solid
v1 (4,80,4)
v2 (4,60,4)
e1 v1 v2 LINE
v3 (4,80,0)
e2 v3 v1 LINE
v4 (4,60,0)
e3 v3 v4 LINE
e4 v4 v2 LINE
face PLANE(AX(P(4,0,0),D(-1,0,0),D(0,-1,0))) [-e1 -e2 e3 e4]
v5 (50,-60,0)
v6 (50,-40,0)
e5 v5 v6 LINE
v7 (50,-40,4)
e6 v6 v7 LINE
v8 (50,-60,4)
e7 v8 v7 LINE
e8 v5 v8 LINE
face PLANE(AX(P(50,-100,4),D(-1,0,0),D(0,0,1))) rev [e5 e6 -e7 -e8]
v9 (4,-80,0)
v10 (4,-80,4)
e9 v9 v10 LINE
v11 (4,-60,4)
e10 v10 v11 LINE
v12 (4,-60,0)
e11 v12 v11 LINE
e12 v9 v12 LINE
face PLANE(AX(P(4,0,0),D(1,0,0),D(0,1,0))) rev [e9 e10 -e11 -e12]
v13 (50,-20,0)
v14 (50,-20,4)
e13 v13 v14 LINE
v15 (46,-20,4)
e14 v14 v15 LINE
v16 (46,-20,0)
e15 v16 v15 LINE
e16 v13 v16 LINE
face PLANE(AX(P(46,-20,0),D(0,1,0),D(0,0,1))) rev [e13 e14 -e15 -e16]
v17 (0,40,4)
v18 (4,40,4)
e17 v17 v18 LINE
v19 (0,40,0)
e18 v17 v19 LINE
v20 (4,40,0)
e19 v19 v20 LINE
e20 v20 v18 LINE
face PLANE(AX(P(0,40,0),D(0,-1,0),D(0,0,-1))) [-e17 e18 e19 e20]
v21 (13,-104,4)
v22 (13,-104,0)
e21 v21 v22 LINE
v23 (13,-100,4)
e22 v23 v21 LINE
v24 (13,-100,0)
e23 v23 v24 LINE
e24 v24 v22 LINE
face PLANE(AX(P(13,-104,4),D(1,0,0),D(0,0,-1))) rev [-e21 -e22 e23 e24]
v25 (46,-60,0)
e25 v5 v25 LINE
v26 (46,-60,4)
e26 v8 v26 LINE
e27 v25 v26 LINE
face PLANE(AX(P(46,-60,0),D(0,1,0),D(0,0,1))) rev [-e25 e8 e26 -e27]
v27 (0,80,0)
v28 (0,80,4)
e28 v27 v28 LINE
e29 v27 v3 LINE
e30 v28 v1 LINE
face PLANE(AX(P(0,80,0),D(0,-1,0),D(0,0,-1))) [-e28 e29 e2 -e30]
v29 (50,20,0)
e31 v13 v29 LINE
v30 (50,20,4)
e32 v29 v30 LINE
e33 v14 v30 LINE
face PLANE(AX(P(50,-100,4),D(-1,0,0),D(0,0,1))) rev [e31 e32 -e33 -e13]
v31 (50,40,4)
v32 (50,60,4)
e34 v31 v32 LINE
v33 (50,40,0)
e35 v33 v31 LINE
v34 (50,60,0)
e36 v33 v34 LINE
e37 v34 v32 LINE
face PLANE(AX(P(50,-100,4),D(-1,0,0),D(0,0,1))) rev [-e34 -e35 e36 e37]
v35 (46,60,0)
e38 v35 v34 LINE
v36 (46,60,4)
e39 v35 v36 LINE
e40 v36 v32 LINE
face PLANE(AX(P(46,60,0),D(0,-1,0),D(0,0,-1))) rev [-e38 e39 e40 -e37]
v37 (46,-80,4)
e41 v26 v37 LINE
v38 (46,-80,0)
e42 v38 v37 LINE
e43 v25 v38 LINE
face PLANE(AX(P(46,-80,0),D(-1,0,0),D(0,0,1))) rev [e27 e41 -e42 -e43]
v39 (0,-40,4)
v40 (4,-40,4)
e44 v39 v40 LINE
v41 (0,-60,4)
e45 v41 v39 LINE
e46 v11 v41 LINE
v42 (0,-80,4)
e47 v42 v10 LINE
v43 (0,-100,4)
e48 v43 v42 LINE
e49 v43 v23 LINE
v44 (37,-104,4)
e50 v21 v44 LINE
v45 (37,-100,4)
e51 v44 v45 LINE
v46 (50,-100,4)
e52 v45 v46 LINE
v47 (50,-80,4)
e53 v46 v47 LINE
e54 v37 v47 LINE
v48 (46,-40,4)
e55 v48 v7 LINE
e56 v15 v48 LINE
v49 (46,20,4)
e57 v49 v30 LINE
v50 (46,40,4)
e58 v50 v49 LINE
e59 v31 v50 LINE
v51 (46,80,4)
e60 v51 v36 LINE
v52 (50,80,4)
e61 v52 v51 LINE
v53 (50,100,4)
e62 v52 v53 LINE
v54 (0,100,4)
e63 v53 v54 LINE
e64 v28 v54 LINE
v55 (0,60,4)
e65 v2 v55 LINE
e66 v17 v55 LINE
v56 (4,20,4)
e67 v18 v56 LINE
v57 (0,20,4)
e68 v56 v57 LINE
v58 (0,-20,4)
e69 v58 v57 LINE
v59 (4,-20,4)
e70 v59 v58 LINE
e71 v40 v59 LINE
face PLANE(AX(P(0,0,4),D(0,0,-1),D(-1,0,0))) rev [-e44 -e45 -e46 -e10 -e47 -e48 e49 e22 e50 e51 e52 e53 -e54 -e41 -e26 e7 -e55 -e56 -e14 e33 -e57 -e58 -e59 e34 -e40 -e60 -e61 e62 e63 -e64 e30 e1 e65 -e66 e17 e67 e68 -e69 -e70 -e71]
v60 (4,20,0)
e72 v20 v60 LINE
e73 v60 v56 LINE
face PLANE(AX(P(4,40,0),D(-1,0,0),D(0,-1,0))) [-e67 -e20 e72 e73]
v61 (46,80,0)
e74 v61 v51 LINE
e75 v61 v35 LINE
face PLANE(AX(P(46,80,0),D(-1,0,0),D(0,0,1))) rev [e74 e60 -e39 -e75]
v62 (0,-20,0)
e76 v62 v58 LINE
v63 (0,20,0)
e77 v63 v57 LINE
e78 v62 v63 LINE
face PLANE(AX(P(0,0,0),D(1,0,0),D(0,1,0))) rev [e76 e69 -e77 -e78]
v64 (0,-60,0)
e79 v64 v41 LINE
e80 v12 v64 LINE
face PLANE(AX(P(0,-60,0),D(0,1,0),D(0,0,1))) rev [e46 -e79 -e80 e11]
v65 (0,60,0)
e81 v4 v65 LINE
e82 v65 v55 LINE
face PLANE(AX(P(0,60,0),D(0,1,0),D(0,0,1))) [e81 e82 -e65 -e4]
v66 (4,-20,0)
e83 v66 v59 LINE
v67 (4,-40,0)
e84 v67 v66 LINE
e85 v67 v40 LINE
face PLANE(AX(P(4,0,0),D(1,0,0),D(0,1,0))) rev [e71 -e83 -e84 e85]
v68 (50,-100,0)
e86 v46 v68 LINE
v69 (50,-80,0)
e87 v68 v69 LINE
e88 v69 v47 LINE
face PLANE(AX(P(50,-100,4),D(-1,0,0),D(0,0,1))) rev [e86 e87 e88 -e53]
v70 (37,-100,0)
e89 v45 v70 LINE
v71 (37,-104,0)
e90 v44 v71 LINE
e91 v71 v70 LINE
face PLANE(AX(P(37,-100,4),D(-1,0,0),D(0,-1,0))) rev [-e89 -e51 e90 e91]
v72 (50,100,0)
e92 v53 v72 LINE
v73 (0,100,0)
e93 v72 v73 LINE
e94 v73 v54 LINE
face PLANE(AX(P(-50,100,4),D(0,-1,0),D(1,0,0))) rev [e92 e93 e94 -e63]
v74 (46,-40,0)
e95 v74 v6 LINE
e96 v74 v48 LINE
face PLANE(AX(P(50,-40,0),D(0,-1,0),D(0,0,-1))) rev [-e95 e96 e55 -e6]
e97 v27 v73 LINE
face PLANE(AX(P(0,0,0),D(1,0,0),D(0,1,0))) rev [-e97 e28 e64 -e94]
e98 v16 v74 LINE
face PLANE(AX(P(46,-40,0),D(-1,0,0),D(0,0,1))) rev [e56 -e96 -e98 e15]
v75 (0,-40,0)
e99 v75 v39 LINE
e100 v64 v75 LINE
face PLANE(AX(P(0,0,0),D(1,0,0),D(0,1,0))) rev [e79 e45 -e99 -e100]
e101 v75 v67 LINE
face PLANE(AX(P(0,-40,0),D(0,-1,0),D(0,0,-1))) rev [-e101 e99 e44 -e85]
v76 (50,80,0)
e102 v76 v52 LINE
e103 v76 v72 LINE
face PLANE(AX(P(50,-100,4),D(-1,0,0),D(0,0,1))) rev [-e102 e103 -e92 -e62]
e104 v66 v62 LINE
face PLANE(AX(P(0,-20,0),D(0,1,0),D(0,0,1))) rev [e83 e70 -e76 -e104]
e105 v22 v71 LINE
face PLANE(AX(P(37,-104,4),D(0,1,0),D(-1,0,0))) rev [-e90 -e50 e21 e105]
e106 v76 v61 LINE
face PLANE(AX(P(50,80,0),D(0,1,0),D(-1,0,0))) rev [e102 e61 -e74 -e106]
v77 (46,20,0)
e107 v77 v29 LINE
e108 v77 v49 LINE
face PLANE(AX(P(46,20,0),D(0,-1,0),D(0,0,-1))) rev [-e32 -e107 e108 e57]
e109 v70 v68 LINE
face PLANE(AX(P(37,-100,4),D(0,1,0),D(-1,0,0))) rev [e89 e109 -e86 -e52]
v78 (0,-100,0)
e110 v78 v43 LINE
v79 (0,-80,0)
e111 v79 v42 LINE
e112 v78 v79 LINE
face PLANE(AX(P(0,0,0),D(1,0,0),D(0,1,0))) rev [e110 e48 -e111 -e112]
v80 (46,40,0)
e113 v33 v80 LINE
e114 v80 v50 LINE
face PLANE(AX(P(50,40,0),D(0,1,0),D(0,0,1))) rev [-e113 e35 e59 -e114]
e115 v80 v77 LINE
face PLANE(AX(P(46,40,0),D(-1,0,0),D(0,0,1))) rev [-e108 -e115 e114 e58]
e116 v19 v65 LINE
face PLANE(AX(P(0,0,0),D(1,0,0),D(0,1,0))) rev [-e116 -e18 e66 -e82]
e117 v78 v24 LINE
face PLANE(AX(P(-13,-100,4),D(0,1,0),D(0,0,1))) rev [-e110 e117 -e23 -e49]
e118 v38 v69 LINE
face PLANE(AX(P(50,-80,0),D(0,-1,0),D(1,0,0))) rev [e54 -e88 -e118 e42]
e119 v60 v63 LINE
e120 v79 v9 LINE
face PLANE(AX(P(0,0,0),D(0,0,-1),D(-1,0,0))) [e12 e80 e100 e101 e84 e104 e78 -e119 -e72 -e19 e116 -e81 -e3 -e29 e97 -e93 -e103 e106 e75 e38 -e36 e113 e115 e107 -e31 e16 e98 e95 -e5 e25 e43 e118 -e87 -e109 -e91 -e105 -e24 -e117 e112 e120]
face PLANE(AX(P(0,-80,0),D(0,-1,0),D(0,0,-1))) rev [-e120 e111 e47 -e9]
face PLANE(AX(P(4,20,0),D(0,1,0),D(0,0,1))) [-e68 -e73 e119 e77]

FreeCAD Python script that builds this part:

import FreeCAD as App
import Part
import Sketcher

V = App.Vector
Q = App.Units.Quantity


def add_polygon(sketch, points):
    """Adds a closed chain of lines whose ends are joined by coincident constraints."""
    first, n = sketch.GeometryCount, len(points)
    for a, b in zip(points, points[1:] + points[:1]):
        sketch.addGeometry(Part.LineSegment(App.Vector(*a, 0), App.Vector(*b, 0)), False)
    for i in range(n):
        sketch.addConstraint(Sketcher.Constraint("Coincident", first + i, 2, first + (i + 1) % n, 1))

doc = App.newDocument("Part")
params = doc.addObject("Spreadsheet::Sheet", "Params")
for row, (alias, value) in enumerate([
    ("sketch1_width", "13 mm"),
    ("sketch1_width2", "24 mm"),
    ("sketch1_width3", "26 mm"),
    ("sketch1_height", "4 mm"),
    ("sketch1_height2", "200 mm"),
    ("pad1_length", "4 mm"),
    ("sketch2_width", "50 mm"),
    ("sketch2_width2", "13 mm"),
    ("sketch2_width3", "4 mm"),
    ("sketch2_height", "200 mm"),
    ("sketch2_height2", "20 mm"),
    ("sketch3_width", "4 mm"),
    ("sketch3_height", "20 mm"),
], start=1):
    params.set(f"A{row}", alias)
    params.set(f"B{row}", "=" + value)
    params.setAlias(f"B{row}", alias)

body = doc.addObject("PartDesign::Body", "Body")

sketch1 = doc.addObject("Sketcher::SketchObject", "Sketch")
body.addObject(sketch1)
sketch1.AttachmentSupport = (doc.XY_Plane, [""])
sketch1.MapMode = "FlatFace"
add_polygon(sketch1, [(-50, -100), (-37, -100), (-37, -104), (-13, -104), (-13, -100), (13, -100), (13, -104), (37, -104), (37, -100), (50, -100), (50, 100), (-50, 100)])
sketch1.addConstraint(Sketcher.Constraint("Horizontal", 0))
sketch1.addConstraint(Sketcher.Constraint("Vertical", 1))
sketch1.addConstraint(Sketcher.Constraint("Horizontal", 2))
sketch1.addConstraint(Sketcher.Constraint("Vertical", 3))
sketch1.addConstraint(Sketcher.Constraint("Horizontal", 4))
sketch1.addConstraint(Sketcher.Constraint("Vertical", 5))
sketch1.addConstraint(Sketcher.Constraint("Horizontal", 6))
sketch1.addConstraint(Sketcher.Constraint("Vertical", 7))
sketch1.addConstraint(Sketcher.Constraint("Horizontal", 8))
sketch1.addConstraint(Sketcher.Constraint("Vertical", 9))
sketch1.addConstraint(Sketcher.Constraint("Horizontal", 10))
sketch1.addConstraint(Sketcher.Constraint("Vertical", 11))
sketch1.addConstraint(Sketcher.Constraint("Symmetric", 8, 2, 10, 2, -1, 1))
sketch1.addConstraint(Sketcher.Constraint("Symmetric", 2, 2, 5, 2, -2))
sketch1.addConstraint(Sketcher.Constraint("Symmetric", 0, 2, 7, 2, -2))
sketch1.addConstraint(Sketcher.Constraint("Horizontal", 0, 2, 3, 2))
sketch1.addConstraint(Sketcher.Constraint("DistanceX", 0, 1, 0, 2, Q("13 mm")))
sketch1.addConstraint(Sketcher.Constraint("DistanceX", 2, 1, 2, 2, Q("24 mm")))
sketch1.addConstraint(Sketcher.Constraint("DistanceX", 4, 1, 4, 2, Q("26 mm")))
sketch1.addConstraint(Sketcher.Constraint("DistanceY", 1, 2, 1, 1, Q("4 mm")))
sketch1.addConstraint(Sketcher.Constraint("DistanceY", 9, 1, 9, 2, Q("200 mm")))
sketch1.setExpression("Constraints[28]", "Params.sketch1_width")
sketch1.setExpression("Constraints[29]", "Params.sketch1_width2")
sketch1.setExpression("Constraints[30]", "Params.sketch1_width3")
sketch1.setExpression("Constraints[31]", "Params.sketch1_height")
sketch1.setExpression("Constraints[32]", "Params.sketch1_height2")
pad1 = doc.addObject("PartDesign::Pad", "Pad")
body.addObject(pad1)
pad1.Profile = sketch1
pad1.setExpression("Length", "Params.pad1_length")

sketch2 = doc.addObject("Sketcher::SketchObject", "Sketch001")
body.addObject(sketch2)
sketch2.AttachmentSupport = (doc.XY_Plane, [""])
sketch2.MapMode = "FlatFace"
sketch2.AttachmentOffset = App.Placement(V(0, 0, 4), App.Rotation())
add_polygon(sketch2, [(0, 100), (-50, 100), (-50, -100), (-37, -100), (-37, -104), (-13, -104), (-13, -100), (0, -100), (0, -80), (4, -80), (4, -60), (0, -60), (0, -40), (4, -40), (4, -20), (0, -20), (0, 20), (4, 20), (4, 40), (0, 40), (0, 60), (4, 60), (4, 80), (0, 80)])
sketch2.addConstraint(Sketcher.Constraint("Horizontal", 0))
sketch2.addConstraint(Sketcher.Constraint("Vertical", 1))
sketch2.addConstraint(Sketcher.Constraint("Horizontal", 2))
sketch2.addConstraint(Sketcher.Constraint("Vertical", 3))
sketch2.addConstraint(Sketcher.Constraint("Horizontal", 4))
sketch2.addConstraint(Sketcher.Constraint("Vertical", 5))
sketch2.addConstraint(Sketcher.Constraint("Horizontal", 6))
sketch2.addConstraint(Sketcher.Constraint("Vertical", 7))
sketch2.addConstraint(Sketcher.Constraint("Horizontal", 8))
sketch2.addConstraint(Sketcher.Constraint("Vertical", 9))
sketch2.addConstraint(Sketcher.Constraint("Horizontal", 10))
sketch2.addConstraint(Sketcher.Constraint("Vertical", 11))
sketch2.addConstraint(Sketcher.Constraint("Horizontal", 12))
sketch2.addConstraint(Sketcher.Constraint("Vertical", 13))
sketch2.addConstraint(Sketcher.Constraint("Horizontal", 14))
sketch2.addConstraint(Sketcher.Constraint("Vertical", 15))
sketch2.addConstraint(Sketcher.Constraint("Horizontal", 16))
sketch2.addConstraint(Sketcher.Constraint("Vertical", 17))
sketch2.addConstraint(Sketcher.Constraint("Horizontal", 18))
sketch2.addConstraint(Sketcher.Constraint("Vertical", 19))
sketch2.addConstraint(Sketcher.Constraint("Horizontal", 20))
sketch2.addConstraint(Sketcher.Constraint("Vertical", 21))
sketch2.addConstraint(Sketcher.Constraint("Horizontal", 22))
sketch2.addConstraint(Sketcher.Constraint("Vertical", 23))
sketch2.addConstraint(Sketcher.Constraint("Symmetric", 14, 2, 15, 2, -1, 1))
sketch2.addConstraint(Sketcher.Constraint("Symmetric", 11, 2, 18, 2, -1, 1))
sketch2.addConstraint(Sketcher.Constraint("Symmetric", 7, 2, 22, 2, -1, 1))
sketch2.addConstraint(Sketcher.Constraint("Symmetric", 10, 2, 19, 2, -1))
sketch2.addConstraint(Sketcher.Constraint("Symmetric", 6, 2, 23, 2, -1))
sketch2.addConstraint(Sketcher.Constraint("Horizontal", 2, 2, 5, 2))
sketch2.addConstraint(Sketcher.Constraint("Vertical", 9, 2, 12, 2))
sketch2.addConstraint(Sketcher.Constraint("Vertical", 13, 2, 16, 2))
sketch2.addConstraint(Sketcher.Constraint("Vertical", 17, 2, 20, 2))
sketch2.addConstraint(Sketcher.Constraint("Equal", 2, 6))
sketch2.addConstraint(Sketcher.Constraint("Equal", 22, 3))
sketch2.addConstraint(Sketcher.Constraint("Equal", 7, 9))
sketch2.addConstraint(Sketcher.Constraint("Equal", 9, 11))
sketch2.addConstraint(Sketcher.Constraint("Equal", 11, 13))
sketch2.addConstraint(Sketcher.Constraint("DistanceX", 0, 2, 0, 1, Q("50 mm")))
sketch2.addConstraint(Sketcher.Constraint("DistanceX", 2, 1, 2, 2, Q("13 mm")))
sketch2.addConstraint(Sketcher.Constraint("DistanceX", 8, 1, 8, 2, Q("4 mm")))
sketch2.addConstraint(Sketcher.Constraint("DistanceY", 1, 2, 1, 1, Q("200 mm")))
sketch2.addConstraint(Sketcher.Constraint("DistanceY", 7, 1, 7, 2, Q("20 mm")))
sketch2.setExpression("Constraints[62]", "Params.sketch2_width")
sketch2.setExpression("Constraints[63]", "Params.sketch2_width2")
sketch2.setExpression("Constraints[64]", "Params.sketch2_width3")
sketch2.setExpression("Constraints[65]", "Params.sketch2_height")
sketch2.setExpression("Constraints[66]", "Params.sketch2_height2")
pocket1 = doc.addObject("PartDesign::Pocket", "Pocket")
body.addObject(pocket1)
pocket1.Profile = sketch2
pocket1.Type = "ThroughAll"

sketch3 = doc.addObject("Sketcher::SketchObject", "Sketch002")
body.addObject(sketch3)
sketch3.AttachmentSupport = (doc.XY_Plane, [""])
sketch3.MapMode = "FlatFace"
sketch3.AttachmentOffset = App.Placement(V(0, 0, 4), App.Rotation())
add_polygon(sketch3, [(46, 80), (46, 60), (50, 60), (50, 80)])
add_polygon(sketch3, [(46, 40), (46, 20), (50, 20), (50, 40)])
add_polygon(sketch3, [(46, -60), (46, -80), (50, -80), (50, -60)])
add_polygon(sketch3, [(46, -20), (46, -40), (50, -40), (50, -20)])
sketch3.addConstraint(Sketcher.Constraint("Vertical", 0))
sketch3.addConstraint(Sketcher.Constraint("Horizontal", 1))
sketch3.addConstraint(Sketcher.Constraint("Vertical", 2))
sketch3.addConstraint(Sketcher.Constraint("Horizontal", 3))
sketch3.addConstraint(Sketcher.Constraint("Vertical", 4))
sketch3.addConstraint(Sketcher.Constraint("Horizontal", 5))
sketch3.addConstraint(Sketcher.Constraint("Vertical", 6))
sketch3.addConstraint(Sketcher.Constraint("Horizontal", 7))
sketch3.addConstraint(Sketcher.Constraint("Vertical", 8))
sketch3.addConstraint(Sketcher.Constraint("Horizontal", 9))
sketch3.addConstraint(Sketcher.Constraint("Vertical", 10))
sketch3.addConstraint(Sketcher.Constraint("Horizontal", 11))
sketch3.addConstraint(Sketcher.Constraint("Vertical", 12))
sketch3.addConstraint(Sketcher.Constraint("Horizontal", 13))
sketch3.addConstraint(Sketcher.Constraint("Vertical", 14))
sketch3.addConstraint(Sketcher.Constraint("Horizontal", 15))
sketch3.addConstraint(Sketcher.Constraint("Symmetric", 3, 2, 8, 2, -1))
sketch3.addConstraint(Sketcher.Constraint("Symmetric", 1, 2, 10, 2, -1))
sketch3.addConstraint(Sketcher.Constraint("Symmetric", 7, 2, 12, 2, -1))
sketch3.addConstraint(Sketcher.Constraint("Symmetric", 5, 2, 14, 2, -1))
sketch3.addConstraint(Sketcher.Constraint("Vertical", 3, 2, 4, 2))
sketch3.addConstraint(Sketcher.Constraint("Vertical", 2, 2, 5, 2))
sketch3.addConstraint(Sketcher.Constraint("Equal", 2, 4))
sketch3.addConstraint(Sketcher.Constraint("DistanceX", 1, 1, 1, 2, Q("4 mm")))
sketch3.addConstraint(Sketcher.Constraint("DistanceY", 0, 2, 0, 1, Q("20 mm")))
sketch3.addConstraint(Sketcher.Constraint("DistanceX", -1, 1, 0, 2, Q("46 mm")))
sketch3.addConstraint(Sketcher.Constraint("DistanceY", -1, 1, 0, 2, Q("60 mm")))
sketch3.addConstraint(Sketcher.Constraint("DistanceY", -1, 1, 4, 2, Q("20 mm")))
sketch3.setExpression("Constraints[39]", "Params.sketch3_width")
sketch3.setExpression("Constraints[40]", "Params.sketch3_height")
pocket2 = doc.addObject("PartDesign::Pocket", "Pocket001")
body.addObject(pocket2)
pocket2.Profile = sketch3
pocket2.Type = "ThroughAll"

doc.recompute()
